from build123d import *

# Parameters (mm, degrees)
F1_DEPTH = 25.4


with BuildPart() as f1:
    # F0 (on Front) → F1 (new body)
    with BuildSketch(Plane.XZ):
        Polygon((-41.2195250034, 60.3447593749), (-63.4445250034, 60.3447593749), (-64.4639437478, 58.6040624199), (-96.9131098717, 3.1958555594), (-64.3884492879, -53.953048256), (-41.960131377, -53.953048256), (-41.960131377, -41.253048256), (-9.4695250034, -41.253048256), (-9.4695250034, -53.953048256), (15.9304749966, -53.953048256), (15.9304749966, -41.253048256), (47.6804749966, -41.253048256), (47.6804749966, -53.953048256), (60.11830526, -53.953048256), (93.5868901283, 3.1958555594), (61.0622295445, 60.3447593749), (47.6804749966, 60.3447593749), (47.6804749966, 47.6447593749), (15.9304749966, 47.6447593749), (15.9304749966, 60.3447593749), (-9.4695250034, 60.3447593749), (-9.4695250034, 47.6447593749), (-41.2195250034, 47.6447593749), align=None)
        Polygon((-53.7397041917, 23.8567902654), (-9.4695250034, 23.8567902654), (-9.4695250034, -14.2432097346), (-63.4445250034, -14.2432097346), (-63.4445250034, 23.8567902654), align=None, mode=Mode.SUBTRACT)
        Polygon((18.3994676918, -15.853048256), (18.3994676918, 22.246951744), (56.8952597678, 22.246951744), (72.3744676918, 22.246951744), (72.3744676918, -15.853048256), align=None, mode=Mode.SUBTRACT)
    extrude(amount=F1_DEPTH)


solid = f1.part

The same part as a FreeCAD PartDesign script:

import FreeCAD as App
import Part
import Sketcher
from FreeCAD import Vector
Q = App.Units.Quantity


def add_polygon(sketch, points):
    """Adds a closed chain of lines whose ends are joined by coincident constraints."""
    first, n = sketch.GeometryCount, len(points)
    for a, b in zip(points, points[1:] + points[:1]):
        sketch.addGeometry(Part.LineSegment(App.Vector(*a, 0), App.Vector(*b, 0)), False)
    for i in range(n):
        sketch.addConstraint(Sketcher.Constraint("Coincident", first + i, 2, first + (i + 1) % n, 1))

doc = App.newDocument("Part")
body = doc.addObject("PartDesign::Body", "Body")

sketch1 = body.newObject("Sketcher::SketchObject", "Sketch")
sketch1.AttachmentSupport = (doc.getObject("XZ_Plane"), [""])
sketch1.MapMode = "FlatFace"
add_polygon(sketch1, [(-41.2, 60.3), (-63.4, 60.3), (-64.5, 58.6), (-96.9, 3.2), (-64.4, -54), (-42, -54), (-42, -41.3), (-9.5, -41.3), (-9.5, -54), (15.9, -54), (15.9, -41.3), (47.7, -41.3), (47.7, -54), (60.1, -54), (93.6, 3.2), (61.1, 60.3), (47.7, 60.3), (47.7, 47.6), (15.9, 47.6), (15.9, 60.3), (-9.5, 60.3), (-9.5, 47.6), (-41.2, 47.6)])
add_polygon(sketch1, [(72.4, -15.9), (18.4, -15.9), (18.4, 22.2), (72.4, 22.2)])
add_polygon(sketch1, [(-63.4, 23.9), (-9.5, 23.9), (-9.5, -14.2), (-63.4, -14.2)])
sketch1.addConstraint([
    Sketcher.Constraint("Horizontal", 0),
    Sketcher.Constraint("Horizontal", 4),
    Sketcher.Constraint("Vertical", 5),
    Sketcher.Constraint("Horizontal", 6),
    Sketcher.Constraint("Vertical", 7),
    Sketcher.Constraint("Horizontal", 8),
    Sketcher.Constraint("Vertical", 9),
    Sketcher.Constraint("Horizontal", 10),
    Sketcher.Constraint("Vertical", 11),
    Sketcher.Constraint("Horizontal", 12),
    Sketcher.Constraint("Horizontal", 15),
    Sketcher.Constraint("Vertical", 16),
    Sketcher.Constraint("Horizontal", 17),
    Sketcher.Constraint("Vertical", 18),
    Sketcher.Constraint("Horizontal", 19),
    Sketcher.Constraint("Vertical", 20),
    Sketcher.Constraint("Horizontal", 21),
    Sketcher.Constraint("Vertical", 22),
    Sketcher.Constraint("Horizontal", 23),
    Sketcher.Constraint("Vertical", 24),
    Sketcher.Constraint("Horizontal", 25),
    Sketcher.Constraint("Vertical", 26),
    Sketcher.Constraint("Horizontal", 27),
    Sketcher.Constraint("Vertical", 28),
    Sketcher.Constraint("Horizontal", 29),
    Sketcher.Constraint("Vertical", 30),
    Sketcher.Constraint("Parallel", 1, 2),
    Sketcher.Constraint("Parallel", 2, 13),
    Sketcher.Constraint("Parallel", 3, 14),
    Sketcher.Constraint("Horizontal", 4, 2, 7, 2),
    Sketcher.Constraint("Horizontal", 6, 2, 9, 2),
    Sketcher.Constraint("Horizontal", 8, 2, 11, 2),
    Sketcher.Constraint("Horizontal", 2, 2, 13, 2),
    Sketcher.Constraint("Horizontal", 0, 2, 14, 2),
    Sketcher.Constraint("Horizontal", 15, 2, 18, 2),
    Sketcher.Constraint("Horizontal", 17, 2, 20, 2),
    Sketcher.Constraint("Vertical", 11, 2, 15, 2),
    Sketcher.Constraint("Vertical", 9, 2, 17, 2),
    Sketcher.Constraint("Vertical", 7, 2, 19, 2),
    Sketcher.Constraint("Vertical", 20, 2, 27, 2),
    Sketcher.Constraint("Vertical", 0, 2, 29, 2),
    Sketcher.Constraint("Equal", 17, 21),
    Sketcher.Constraint("Equal", 25, 27),
    Sketcher.Constraint("Equal", 11, 16),
    Sketcher.Constraint("Equal", 26, 28),
    Sketcher.Constraint("Equal", 3, 14),
    Sketcher.Constraint("DistanceX", 8, 1, 8, 2, Q("1 in")),
    Sketcher.Constraint("DistanceY", 5, 1, 5, 2, Q("0.5 in")),
    Sketcher.Constraint("DistanceY", 24, 1, 24, 2, Q("1.5 in")),
    Sketcher.Constraint("DistanceY", 9, 2, 23, 2, Q("1 in")),
    Sketcher.Constraint("DistanceX", 10, 1, 10, 2, Q("1.25 in")),
    Sketcher.Constraint("DistanceX", 0, 2, 0, 1, Q("0.875 in")),
    Sketcher.Constraint("DistanceX", 12, 1, 12, 2, Q("12.43783 mm")),
    Sketcher.Constraint("Distance", 2, Q("64.210729 mm")),
    Sketcher.Constraint("DistanceX", 4, 1, 4, 2, Q("22.428318 mm")),
    Sketcher.Constraint("DistanceX", 6, 1, 6, 2, Q("32.490606 mm")),
    Sketcher.Constraint("DistanceY", -1, 1, 0, 2, Q("60.344759 mm")),
    Sketcher.Constraint("DistanceX", 2, 2, -1, 1, Q("96.91311 mm")),
    Sketcher.Constraint("DistanceX", 3, 2, -1, 1, Q("64.388449 mm")),
    Sketcher.Constraint("DistanceY", 3, 2, -1, 1, Q("53.953048 mm")),
    Sketcher.Constraint("DistanceY", -1, 1, 27, 2, Q("23.85679 mm")),
    Sketcher.Constraint("DistanceX", 14, 2, 25, 2, Q("11.312238 mm")),
])
pad1 = body.newObject("PartDesign::Pad", "Pad")
pad1.Profile = sketch1
pad1.Length = Q("1 in")

doc.recompute()
